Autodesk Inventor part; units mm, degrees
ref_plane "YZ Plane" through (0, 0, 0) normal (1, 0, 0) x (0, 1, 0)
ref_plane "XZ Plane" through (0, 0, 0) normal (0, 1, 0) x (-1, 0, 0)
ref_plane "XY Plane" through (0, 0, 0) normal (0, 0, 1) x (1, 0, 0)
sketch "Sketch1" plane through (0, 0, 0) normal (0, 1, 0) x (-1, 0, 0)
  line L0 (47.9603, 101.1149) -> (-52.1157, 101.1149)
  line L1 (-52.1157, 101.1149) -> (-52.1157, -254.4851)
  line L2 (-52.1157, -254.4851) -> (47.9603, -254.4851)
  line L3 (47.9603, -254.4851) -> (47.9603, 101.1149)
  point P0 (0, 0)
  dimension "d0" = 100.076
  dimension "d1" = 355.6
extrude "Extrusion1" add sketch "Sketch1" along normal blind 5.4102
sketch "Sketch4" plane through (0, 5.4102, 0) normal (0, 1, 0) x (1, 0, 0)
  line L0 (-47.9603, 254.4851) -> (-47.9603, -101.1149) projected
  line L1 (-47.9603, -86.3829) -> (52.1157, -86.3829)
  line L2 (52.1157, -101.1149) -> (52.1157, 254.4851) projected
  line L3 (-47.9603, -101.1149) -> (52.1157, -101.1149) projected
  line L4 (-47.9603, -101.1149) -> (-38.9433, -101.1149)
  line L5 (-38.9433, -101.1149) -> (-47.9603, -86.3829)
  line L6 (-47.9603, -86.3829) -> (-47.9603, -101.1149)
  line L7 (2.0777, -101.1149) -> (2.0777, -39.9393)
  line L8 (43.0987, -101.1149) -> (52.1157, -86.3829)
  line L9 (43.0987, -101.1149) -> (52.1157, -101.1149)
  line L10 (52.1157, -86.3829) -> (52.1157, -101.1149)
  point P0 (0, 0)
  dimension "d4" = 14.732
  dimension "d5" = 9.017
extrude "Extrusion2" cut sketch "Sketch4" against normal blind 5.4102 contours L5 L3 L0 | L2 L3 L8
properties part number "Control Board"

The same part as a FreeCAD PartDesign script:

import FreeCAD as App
import Part
import Sketcher
Q = App.Units.Quantity


def add_polygon(sketch, points):
    """Adds a closed chain of lines whose ends are joined by coincident constraints."""
    first, n = sketch.GeometryCount, len(points)
    for a, b in zip(points, points[1:] + points[:1]):
        sketch.addGeometry(Part.LineSegment(App.Vector(*a, 0), App.Vector(*b, 0)), False)
    for i in range(n):
        sketch.addConstraint(Sketcher.Constraint("Coincident", first + i, 2, first + (i + 1) % n, 1))

doc = App.newDocument("Part")
body = doc.addObject("PartDesign::Body", "Body")

sketch1 = body.newObject("Sketcher::SketchObject", "Sketch")
sketch1.AttachmentSupport = (doc.getObject("XZ_Plane"), [""])
sketch1.MapMode = "FlatFace"
add_polygon(sketch1, [(-48, -254), (-48, 101), (52, 101), (52, -254)])
sketch1.addConstraint([
    Sketcher.Constraint("Vertical", 0),
    Sketcher.Constraint("Horizontal", 1),
    Sketcher.Constraint("Vertical", 2),
    Sketcher.Constraint("Horizontal", 3),
    Sketcher.Constraint("DistanceY", 0, 1, 0, 2, Q("14 in")),
    Sketcher.Constraint("DistanceX", 1, 1, 1, 2, Q("3.94 in")),
    Sketcher.Constraint("DistanceX", 0, 2, -1, 1, Q("1.8882 in")),
    Sketcher.Constraint("DistanceY", -1, 1, 0, 2, Q("3.9809 in")),
])
pad1 = body.newObject("PartDesign::Pad", "Pad")
pad1.Profile = sketch1
pad1.Length = Q("0.213 in")
pad1.Reversed = True

sketch2 = body.newObject("Sketcher::SketchObject", "Sketch001")
sketch2.AttachmentSupport = (doc.getObject("XZ_Plane"), [""])
sketch2.MapMode = "FlatFace"
sketch2.AttachmentOffset = App.Placement(App.Vector(0, 0, -0.213 * 25.4), App.Rotation())
add_polygon(sketch2, [(-39, 101), (-48, 86), (-48, 101)])
add_polygon(sketch2, [(52, 101), (52, 86), (43, 101)])
sketch2.addConstraint([
    Sketcher.Constraint("Vertical", 1),
    Sketcher.Constraint("Horizontal", 2),
    Sketcher.Constraint("Vertical", 3),
    Sketcher.Constraint("Horizontal", 5),
    Sketcher.Constraint("Horizontal", 0, 2, 3, 2),
    Sketcher.Constraint("Horizontal", 2, 2, 4, 2),
    Sketcher.Constraint("Equal", 2, 5),
    Sketcher.Constraint("DistanceY", 1, 1, 1, 2, Q("0.58 in")),
    Sketcher.Constraint("DistanceX", 2, 1, 2, 2, Q("0.355 in")),
    Sketcher.Constraint("DistanceX", 0, 2, 3, 2, Q("3.94 in")),
    Sketcher.Constraint("DistanceX", 0, 2, -1, 1, Q("1.8882 in")),
    Sketcher.Constraint("DistanceY", -1, 1, 0, 2, Q("3.4009 in")),
])
pocket1 = body.newObject("PartDesign::Pocket", "Pocket")
pocket1.Profile = sketch2
pocket1.Length = Q("0.213 in")
pocket1.Reversed = True

doc.recompute()
